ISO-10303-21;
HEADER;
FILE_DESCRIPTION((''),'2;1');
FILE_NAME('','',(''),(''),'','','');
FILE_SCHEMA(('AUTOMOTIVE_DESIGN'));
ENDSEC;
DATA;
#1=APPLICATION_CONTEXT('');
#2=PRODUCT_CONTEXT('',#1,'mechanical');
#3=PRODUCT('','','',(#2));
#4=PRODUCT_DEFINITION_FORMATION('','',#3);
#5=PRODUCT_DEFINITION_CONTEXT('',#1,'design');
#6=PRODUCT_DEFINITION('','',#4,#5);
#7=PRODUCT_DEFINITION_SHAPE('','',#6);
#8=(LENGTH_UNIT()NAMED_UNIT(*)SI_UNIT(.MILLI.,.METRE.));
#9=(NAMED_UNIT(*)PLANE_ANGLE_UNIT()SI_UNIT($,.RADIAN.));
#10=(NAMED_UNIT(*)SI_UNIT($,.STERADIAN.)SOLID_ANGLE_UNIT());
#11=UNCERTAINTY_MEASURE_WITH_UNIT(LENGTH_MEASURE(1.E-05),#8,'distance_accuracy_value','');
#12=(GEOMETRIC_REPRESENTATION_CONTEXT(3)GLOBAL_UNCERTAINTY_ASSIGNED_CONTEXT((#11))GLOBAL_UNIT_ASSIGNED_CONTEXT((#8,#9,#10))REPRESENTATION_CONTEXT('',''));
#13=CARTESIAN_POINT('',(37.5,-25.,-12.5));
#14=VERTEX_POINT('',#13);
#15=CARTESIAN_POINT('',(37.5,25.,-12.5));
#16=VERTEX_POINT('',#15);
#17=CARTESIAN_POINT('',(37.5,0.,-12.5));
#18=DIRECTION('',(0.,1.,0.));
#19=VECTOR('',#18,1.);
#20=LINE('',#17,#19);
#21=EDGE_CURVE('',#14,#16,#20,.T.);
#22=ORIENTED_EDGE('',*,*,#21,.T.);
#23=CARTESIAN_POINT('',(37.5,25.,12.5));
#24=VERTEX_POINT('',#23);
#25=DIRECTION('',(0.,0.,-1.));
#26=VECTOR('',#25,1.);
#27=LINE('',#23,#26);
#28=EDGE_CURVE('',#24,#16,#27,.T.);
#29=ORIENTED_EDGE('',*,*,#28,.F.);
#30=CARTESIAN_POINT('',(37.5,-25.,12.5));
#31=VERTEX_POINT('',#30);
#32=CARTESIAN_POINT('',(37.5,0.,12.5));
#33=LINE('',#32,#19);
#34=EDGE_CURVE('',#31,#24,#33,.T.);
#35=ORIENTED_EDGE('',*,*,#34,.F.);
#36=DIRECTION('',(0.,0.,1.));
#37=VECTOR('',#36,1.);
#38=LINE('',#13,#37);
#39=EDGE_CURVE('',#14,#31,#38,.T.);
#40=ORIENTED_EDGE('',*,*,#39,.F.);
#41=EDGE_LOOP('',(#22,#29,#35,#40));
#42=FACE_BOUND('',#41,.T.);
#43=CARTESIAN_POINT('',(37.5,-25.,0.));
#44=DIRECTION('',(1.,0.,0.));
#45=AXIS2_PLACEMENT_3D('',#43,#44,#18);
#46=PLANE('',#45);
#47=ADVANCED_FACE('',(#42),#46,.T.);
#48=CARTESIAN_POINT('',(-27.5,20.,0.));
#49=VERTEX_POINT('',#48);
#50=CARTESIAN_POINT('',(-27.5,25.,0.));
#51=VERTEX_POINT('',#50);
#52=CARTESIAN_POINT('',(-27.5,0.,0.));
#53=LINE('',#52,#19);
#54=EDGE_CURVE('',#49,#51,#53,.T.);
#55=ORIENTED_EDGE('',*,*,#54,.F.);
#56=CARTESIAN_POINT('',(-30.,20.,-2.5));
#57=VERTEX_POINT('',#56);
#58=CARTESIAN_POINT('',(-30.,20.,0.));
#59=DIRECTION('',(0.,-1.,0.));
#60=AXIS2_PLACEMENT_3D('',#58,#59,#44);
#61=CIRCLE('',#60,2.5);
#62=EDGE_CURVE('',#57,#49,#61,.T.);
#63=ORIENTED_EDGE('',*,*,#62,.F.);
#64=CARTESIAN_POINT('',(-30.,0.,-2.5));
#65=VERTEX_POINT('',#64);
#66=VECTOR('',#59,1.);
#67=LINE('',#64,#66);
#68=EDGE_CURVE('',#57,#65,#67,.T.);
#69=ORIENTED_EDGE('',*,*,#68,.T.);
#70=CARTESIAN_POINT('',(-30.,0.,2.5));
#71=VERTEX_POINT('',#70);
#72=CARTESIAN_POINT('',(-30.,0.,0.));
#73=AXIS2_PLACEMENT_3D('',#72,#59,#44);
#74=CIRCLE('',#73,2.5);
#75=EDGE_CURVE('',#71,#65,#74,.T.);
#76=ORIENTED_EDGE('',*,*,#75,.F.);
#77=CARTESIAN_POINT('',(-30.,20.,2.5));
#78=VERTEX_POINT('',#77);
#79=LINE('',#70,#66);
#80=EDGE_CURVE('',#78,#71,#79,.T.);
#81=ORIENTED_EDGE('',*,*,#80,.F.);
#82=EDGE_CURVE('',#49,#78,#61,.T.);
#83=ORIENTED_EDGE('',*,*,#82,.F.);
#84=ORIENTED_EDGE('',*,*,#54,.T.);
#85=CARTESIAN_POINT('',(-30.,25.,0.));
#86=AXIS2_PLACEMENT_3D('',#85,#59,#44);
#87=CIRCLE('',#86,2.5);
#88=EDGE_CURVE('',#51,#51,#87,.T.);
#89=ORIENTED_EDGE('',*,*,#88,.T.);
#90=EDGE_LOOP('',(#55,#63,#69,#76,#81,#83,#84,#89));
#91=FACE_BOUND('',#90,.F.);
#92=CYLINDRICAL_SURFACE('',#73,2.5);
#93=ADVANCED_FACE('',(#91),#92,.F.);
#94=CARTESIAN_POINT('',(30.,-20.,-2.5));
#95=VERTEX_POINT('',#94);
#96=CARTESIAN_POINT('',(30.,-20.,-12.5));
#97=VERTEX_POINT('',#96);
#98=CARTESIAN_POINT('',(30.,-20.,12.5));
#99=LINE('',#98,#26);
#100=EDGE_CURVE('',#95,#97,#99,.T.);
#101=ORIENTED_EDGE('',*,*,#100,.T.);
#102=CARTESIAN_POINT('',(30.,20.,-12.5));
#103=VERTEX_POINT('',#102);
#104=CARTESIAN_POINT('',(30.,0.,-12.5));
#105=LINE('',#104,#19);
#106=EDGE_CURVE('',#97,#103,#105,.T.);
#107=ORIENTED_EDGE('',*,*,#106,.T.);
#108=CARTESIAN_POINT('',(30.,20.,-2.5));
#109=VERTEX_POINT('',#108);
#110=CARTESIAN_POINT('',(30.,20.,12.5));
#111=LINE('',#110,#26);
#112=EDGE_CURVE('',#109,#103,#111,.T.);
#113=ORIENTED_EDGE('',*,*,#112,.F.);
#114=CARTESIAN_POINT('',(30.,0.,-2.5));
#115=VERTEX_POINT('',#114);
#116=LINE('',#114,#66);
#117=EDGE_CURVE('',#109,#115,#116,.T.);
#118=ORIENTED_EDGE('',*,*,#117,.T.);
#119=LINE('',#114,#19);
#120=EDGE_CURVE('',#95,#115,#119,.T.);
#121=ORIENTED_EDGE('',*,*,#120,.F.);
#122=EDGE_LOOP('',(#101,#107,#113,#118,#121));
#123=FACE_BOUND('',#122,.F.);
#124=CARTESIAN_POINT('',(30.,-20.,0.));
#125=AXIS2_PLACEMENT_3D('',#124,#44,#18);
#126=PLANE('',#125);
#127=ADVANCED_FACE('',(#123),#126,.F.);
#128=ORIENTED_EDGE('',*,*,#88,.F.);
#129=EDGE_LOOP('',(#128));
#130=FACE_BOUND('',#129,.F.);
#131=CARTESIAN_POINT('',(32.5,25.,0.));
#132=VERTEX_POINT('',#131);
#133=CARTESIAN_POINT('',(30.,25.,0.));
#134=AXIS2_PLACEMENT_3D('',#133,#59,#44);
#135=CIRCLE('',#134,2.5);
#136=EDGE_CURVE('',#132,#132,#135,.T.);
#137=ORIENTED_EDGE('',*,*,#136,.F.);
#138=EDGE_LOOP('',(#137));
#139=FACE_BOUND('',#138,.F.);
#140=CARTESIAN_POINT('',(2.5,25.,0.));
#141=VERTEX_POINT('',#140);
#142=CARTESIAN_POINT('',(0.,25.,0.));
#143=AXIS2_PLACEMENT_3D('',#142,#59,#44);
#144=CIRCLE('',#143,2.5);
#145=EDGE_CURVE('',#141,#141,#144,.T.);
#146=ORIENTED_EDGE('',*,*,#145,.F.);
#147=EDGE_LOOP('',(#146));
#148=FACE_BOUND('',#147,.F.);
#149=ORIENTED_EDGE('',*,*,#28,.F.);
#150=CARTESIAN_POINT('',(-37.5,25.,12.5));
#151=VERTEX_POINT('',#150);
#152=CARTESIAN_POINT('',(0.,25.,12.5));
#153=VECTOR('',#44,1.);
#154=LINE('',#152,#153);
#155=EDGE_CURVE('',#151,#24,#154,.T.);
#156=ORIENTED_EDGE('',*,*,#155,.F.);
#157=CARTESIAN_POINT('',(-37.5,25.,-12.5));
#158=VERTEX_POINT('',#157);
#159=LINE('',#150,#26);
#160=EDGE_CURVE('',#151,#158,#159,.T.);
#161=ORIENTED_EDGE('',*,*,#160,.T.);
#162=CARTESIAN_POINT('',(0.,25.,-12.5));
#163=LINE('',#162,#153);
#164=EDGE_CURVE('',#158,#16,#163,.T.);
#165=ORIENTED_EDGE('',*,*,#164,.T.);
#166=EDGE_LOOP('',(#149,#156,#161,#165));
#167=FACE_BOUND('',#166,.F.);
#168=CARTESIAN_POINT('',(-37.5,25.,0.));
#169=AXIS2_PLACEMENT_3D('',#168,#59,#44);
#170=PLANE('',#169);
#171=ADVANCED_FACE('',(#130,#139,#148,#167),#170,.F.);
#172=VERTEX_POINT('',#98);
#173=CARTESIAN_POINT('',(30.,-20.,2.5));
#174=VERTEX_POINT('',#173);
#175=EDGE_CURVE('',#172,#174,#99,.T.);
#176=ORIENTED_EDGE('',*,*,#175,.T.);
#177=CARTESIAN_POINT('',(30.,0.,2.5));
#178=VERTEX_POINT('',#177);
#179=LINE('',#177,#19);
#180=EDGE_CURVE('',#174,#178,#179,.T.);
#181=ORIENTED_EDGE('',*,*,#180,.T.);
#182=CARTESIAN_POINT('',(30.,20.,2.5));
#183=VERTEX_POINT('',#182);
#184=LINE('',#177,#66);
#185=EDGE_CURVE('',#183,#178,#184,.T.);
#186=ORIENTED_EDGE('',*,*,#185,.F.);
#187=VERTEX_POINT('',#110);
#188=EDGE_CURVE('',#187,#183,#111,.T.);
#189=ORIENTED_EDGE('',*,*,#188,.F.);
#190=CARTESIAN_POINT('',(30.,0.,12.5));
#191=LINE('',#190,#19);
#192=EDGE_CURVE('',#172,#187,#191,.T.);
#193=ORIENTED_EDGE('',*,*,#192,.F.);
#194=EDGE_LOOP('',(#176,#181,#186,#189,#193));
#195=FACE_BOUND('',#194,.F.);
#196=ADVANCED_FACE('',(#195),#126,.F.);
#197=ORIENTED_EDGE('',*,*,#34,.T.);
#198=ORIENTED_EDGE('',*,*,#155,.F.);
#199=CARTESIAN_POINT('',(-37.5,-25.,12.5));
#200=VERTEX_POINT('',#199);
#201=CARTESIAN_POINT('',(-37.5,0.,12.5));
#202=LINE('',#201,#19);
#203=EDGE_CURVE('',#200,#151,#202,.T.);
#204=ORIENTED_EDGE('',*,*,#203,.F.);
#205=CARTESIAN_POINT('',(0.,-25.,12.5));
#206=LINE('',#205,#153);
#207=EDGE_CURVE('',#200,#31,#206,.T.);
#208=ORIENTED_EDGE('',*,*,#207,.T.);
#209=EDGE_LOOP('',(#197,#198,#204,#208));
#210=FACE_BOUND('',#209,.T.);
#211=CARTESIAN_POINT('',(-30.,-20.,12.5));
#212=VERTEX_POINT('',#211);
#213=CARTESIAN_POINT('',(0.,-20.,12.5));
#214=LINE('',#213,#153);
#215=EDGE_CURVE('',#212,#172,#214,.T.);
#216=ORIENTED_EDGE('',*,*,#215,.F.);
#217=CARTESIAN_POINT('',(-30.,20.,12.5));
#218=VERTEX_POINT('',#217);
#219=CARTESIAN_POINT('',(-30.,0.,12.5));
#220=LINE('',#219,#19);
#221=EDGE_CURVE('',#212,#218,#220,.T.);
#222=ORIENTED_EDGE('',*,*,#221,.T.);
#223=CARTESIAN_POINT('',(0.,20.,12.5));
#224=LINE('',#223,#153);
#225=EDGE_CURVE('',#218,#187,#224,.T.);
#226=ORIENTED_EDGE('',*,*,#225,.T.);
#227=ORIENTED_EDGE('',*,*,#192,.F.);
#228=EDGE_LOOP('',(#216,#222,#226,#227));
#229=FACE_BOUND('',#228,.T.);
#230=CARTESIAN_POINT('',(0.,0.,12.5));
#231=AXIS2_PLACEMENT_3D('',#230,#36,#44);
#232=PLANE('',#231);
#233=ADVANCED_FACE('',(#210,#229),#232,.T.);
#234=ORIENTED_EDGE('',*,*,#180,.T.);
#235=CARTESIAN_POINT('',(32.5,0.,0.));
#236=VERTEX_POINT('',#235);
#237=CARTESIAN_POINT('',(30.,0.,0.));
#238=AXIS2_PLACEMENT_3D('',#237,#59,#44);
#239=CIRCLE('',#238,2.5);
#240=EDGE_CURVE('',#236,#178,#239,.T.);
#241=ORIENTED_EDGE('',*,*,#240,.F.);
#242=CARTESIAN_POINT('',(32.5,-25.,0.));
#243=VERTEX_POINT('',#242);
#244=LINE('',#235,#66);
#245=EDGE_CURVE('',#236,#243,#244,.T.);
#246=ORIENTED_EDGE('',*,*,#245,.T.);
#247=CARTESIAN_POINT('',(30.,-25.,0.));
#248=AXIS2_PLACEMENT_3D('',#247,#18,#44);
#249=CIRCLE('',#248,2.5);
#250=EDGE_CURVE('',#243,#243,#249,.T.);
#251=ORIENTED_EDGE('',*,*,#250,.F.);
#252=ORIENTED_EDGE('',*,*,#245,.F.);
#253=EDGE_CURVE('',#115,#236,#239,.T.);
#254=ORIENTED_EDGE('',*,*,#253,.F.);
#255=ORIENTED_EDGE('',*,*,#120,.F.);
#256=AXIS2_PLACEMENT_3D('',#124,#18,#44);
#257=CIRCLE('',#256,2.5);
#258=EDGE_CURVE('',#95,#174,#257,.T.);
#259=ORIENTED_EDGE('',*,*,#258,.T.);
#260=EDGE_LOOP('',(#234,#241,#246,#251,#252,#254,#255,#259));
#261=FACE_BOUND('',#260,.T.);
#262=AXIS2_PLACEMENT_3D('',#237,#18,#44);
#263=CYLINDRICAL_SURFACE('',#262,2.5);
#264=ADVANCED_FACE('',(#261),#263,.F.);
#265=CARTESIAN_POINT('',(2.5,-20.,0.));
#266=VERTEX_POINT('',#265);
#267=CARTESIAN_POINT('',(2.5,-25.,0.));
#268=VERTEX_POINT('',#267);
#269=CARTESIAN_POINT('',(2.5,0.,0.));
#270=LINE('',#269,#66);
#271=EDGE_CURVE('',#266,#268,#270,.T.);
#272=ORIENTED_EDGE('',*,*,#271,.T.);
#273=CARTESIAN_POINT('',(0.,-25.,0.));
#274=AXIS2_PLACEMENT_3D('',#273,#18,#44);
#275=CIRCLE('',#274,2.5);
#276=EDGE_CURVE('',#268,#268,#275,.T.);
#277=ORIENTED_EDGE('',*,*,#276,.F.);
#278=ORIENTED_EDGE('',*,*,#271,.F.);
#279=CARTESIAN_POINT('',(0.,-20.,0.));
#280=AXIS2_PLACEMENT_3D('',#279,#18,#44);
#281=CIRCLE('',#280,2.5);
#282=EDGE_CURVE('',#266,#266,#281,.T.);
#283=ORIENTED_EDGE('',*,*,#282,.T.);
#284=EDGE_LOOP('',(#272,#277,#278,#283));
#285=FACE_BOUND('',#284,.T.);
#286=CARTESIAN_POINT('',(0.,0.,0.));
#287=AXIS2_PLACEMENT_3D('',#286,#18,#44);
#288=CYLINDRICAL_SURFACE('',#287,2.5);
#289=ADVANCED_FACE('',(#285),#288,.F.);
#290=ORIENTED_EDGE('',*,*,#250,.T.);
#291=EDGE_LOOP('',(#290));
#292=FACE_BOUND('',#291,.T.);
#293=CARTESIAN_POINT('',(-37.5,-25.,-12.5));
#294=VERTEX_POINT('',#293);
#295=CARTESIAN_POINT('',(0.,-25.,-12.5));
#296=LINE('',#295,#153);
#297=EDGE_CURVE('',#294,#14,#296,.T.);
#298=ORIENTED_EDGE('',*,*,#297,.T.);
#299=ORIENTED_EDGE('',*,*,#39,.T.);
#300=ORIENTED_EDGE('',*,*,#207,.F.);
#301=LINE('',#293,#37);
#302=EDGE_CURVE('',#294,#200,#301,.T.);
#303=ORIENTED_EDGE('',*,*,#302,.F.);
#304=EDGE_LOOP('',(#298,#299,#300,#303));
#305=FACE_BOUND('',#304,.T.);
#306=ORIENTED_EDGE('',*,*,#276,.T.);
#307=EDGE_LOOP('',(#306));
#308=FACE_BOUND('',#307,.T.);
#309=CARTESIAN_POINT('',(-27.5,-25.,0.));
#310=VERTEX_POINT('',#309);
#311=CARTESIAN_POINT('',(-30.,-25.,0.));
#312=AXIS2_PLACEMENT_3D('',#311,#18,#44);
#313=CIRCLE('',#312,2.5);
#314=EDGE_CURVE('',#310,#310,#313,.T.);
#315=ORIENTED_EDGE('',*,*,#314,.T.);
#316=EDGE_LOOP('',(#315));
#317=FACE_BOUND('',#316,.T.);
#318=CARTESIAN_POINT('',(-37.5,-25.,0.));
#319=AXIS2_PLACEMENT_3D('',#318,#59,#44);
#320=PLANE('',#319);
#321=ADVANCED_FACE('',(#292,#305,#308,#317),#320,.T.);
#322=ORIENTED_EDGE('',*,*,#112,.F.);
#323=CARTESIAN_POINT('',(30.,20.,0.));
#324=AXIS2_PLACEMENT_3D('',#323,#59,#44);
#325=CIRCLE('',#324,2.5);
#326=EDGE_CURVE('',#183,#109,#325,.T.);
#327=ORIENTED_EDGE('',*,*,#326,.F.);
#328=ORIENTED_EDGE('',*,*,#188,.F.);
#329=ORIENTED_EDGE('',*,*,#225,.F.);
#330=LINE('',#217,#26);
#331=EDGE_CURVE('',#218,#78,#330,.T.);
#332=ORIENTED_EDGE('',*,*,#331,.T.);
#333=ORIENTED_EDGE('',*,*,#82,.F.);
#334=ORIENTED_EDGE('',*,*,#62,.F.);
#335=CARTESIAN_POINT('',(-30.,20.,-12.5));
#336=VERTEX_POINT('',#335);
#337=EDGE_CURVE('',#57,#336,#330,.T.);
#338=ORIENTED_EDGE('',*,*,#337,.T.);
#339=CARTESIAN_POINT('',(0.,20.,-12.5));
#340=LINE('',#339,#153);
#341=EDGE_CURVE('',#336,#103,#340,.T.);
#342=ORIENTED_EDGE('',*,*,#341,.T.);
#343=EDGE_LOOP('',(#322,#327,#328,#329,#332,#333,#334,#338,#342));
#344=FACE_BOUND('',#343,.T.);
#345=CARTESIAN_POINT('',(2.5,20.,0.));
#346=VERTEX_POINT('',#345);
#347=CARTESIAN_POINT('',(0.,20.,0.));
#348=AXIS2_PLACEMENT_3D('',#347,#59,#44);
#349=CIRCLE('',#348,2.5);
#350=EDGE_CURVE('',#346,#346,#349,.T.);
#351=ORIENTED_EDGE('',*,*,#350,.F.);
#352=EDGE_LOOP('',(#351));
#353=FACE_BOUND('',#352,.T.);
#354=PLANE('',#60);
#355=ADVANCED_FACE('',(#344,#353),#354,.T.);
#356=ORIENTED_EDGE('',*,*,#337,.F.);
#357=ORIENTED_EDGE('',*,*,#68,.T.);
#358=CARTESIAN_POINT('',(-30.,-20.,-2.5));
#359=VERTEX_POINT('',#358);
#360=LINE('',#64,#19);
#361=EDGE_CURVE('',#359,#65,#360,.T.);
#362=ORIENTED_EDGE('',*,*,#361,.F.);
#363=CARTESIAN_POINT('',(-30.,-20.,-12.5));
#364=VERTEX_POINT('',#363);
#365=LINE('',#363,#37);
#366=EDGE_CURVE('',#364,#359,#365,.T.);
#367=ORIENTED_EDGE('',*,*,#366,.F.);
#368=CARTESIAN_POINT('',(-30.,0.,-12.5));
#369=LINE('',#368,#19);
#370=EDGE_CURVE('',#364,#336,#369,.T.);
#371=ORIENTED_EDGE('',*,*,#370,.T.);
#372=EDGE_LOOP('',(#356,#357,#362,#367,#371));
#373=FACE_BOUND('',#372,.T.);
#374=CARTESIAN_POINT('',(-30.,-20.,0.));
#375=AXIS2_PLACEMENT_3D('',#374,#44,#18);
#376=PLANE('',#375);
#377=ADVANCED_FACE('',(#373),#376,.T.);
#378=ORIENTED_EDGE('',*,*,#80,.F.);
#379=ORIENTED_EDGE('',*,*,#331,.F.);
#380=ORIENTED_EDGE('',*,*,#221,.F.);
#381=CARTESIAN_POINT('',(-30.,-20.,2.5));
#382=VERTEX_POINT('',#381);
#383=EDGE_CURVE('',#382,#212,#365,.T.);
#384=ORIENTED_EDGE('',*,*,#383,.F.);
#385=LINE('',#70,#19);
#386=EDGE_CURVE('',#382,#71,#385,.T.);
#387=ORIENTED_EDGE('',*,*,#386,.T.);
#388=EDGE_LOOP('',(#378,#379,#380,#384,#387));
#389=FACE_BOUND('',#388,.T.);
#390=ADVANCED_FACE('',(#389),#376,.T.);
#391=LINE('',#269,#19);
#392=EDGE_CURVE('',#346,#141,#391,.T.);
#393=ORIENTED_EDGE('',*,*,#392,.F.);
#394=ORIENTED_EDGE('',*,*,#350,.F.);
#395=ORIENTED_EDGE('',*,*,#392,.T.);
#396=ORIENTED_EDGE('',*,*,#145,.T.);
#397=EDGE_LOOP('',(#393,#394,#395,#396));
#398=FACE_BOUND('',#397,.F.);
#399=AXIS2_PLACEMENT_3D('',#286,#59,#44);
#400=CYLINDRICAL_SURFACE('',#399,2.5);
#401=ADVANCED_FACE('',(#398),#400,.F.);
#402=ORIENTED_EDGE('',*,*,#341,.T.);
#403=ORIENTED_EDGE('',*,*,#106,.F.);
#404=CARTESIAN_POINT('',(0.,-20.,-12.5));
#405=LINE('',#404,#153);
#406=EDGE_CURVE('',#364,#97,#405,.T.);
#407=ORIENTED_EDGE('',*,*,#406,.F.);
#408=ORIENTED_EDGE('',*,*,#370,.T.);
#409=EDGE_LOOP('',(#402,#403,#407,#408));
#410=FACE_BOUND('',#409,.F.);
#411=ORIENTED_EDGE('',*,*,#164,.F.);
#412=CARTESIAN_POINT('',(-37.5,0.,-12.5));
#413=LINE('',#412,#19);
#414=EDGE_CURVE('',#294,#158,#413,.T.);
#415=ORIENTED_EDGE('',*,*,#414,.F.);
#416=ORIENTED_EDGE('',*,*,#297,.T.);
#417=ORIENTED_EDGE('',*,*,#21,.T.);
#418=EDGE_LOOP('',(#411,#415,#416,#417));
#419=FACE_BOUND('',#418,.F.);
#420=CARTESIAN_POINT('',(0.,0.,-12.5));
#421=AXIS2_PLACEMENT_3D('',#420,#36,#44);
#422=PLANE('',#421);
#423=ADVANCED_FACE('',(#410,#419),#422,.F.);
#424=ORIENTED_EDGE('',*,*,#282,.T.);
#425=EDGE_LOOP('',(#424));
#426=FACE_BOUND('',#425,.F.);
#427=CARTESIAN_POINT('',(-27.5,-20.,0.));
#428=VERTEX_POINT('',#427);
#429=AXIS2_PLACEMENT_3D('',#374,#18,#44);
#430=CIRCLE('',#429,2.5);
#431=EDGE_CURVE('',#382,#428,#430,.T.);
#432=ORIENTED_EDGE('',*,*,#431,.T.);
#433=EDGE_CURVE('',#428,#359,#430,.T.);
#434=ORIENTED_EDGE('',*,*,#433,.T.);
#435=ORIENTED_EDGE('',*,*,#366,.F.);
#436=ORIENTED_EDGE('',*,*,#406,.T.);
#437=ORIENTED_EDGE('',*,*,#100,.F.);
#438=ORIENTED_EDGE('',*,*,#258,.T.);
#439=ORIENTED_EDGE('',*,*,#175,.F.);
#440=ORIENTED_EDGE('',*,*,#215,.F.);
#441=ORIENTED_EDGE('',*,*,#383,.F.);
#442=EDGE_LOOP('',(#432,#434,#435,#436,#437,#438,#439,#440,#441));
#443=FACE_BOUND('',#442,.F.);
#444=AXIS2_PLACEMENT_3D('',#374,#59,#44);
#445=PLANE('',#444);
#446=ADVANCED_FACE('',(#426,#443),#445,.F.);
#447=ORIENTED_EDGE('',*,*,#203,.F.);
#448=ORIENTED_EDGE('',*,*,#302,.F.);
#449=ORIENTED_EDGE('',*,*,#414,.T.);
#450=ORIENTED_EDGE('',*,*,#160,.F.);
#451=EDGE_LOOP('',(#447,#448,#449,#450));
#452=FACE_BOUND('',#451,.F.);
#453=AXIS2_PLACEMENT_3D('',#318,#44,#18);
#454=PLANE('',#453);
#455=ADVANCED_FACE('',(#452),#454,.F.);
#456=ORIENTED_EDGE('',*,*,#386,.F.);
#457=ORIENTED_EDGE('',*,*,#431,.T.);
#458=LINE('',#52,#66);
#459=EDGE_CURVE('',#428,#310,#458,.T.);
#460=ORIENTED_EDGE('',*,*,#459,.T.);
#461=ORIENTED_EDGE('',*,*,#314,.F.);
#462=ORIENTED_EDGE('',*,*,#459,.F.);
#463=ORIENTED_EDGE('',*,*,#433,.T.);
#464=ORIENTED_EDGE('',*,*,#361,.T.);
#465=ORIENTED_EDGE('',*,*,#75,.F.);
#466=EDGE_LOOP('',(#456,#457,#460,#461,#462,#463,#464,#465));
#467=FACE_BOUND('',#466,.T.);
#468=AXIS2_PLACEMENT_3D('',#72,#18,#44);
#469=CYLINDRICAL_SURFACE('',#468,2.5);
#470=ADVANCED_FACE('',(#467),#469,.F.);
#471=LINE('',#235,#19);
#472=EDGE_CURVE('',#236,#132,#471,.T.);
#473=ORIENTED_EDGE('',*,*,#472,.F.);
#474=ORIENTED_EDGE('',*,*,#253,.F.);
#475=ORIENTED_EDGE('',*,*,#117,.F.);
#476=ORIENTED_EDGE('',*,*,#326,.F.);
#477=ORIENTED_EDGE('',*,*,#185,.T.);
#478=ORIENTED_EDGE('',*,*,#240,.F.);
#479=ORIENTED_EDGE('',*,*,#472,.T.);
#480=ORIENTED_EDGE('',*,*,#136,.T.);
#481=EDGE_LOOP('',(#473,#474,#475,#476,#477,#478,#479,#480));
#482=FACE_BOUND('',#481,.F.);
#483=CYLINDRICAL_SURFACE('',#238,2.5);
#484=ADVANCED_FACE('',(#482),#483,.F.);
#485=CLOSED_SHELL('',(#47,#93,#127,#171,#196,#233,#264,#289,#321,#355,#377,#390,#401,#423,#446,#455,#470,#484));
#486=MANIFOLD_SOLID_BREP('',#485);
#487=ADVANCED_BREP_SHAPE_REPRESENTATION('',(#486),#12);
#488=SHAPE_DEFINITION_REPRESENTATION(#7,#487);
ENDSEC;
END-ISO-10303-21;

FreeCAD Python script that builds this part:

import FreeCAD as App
import Part
import Sketcher

V = App.Vector

doc = App.newDocument("Part")
body = doc.addObject("PartDesign::Body", "Body")

sketch1 = doc.addObject("Sketcher::SketchObject", "Sketch")
body.addObject(sketch1)
sketch1.AttachmentSupport = (doc.XY_Plane, [""])
sketch1.MapMode = "FlatFace"
sketch1.addGeometry(Part.LineSegment(V(-38, 25, 0), V(-38, -25, 0)), False)
sketch1.addGeometry(Part.LineSegment(V(-38, -25, 0), V(38, -25, 0)), False)
sketch1.addGeometry(Part.LineSegment(V(38, -25, 0), V(38, 25, 0)), False)
sketch1.addGeometry(Part.LineSegment(V(38, 25, 0), V(-38, 25, 0)), False)
sketch1.addGeometry(Part.LineSegment(V(30, -20, 0), V(-30, -20, 0)), False)
sketch1.addGeometry(Part.LineSegment(V(-30, -20, 0), V(-30, 20, 0)), False)
sketch1.addGeometry(Part.LineSegment(V(-30, 20, 0), V(30, 20, 0)), False)
sketch1.addGeometry(Part.LineSegment(V(30, 20, 0), V(30, -20, 0)), False)
sketch1.addConstraint(Sketcher.Constraint("Coincident", 0, 2, 1, 1))
sketch1.addConstraint(Sketcher.Constraint("Coincident", 1, 2, 2, 1))
sketch1.addConstraint(Sketcher.Constraint("Coincident", 2, 2, 3, 1))
sketch1.addConstraint(Sketcher.Constraint("Coincident", 3, 2, 0, 1))
sketch1.addConstraint(Sketcher.Constraint("Coincident", 4, 2, 5, 1))
sketch1.addConstraint(Sketcher.Constraint("Coincident", 5, 2, 6, 1))
sketch1.addConstraint(Sketcher.Constraint("Coincident", 6, 2, 7, 1))
sketch1.addConstraint(Sketcher.Constraint("Coincident", 7, 2, 4, 1))
sketch1.addConstraint(Sketcher.Constraint("Vertical", 0))
sketch1.addConstraint(Sketcher.Constraint("Horizontal", 1))
sketch1.addConstraint(Sketcher.Constraint("Vertical", 2))
sketch1.addConstraint(Sketcher.Constraint("Horizontal", 3))
sketch1.addConstraint(Sketcher.Constraint("Horizontal", 4))
sketch1.addConstraint(Sketcher.Constraint("Vertical", 5))
sketch1.addConstraint(Sketcher.Constraint("Horizontal", 6))
sketch1.addConstraint(Sketcher.Constraint("Vertical", 7))
sketch1.addConstraint(Sketcher.Constraint("Symmetric", 0, 2, 2, 2, -1, 1))
sketch1.addConstraint(Sketcher.Constraint("Symmetric", 4, 2, 6, 2, -1, 1))
sketch1.addConstraint(Sketcher.Constraint("DistanceX", 1, 1, 1, 2, 75.0))
sketch1.addConstraint(Sketcher.Constraint("DistanceX", 4, 2, 4, 1, 60.0))
sketch1.addConstraint(Sketcher.Constraint("DistanceY", 0, 2, 0, 1, 50.0))
sketch1.addConstraint(Sketcher.Constraint("DistanceY", 5, 1, 5, 2, 40.0))
pad1 = doc.addObject("PartDesign::Pad", "Pad")
body.addObject(pad1)
pad1.Profile = sketch1
pad1.Length = 25
pad1.Midplane = True

sketch2 = doc.addObject("Sketcher::SketchObject", "Sketch001")
body.addObject(sketch2)
sketch2.AttachmentSupport = (doc.XZ_Plane, [""])
sketch2.MapMode = "FlatFace"
sketch2.addGeometry(Part.Circle(V(-30, 0, 0), V(0, 0, 1), 2.5), False)
sketch2.addGeometry(Part.Circle(V(30, 0, 0), V(0, 0, 1), 2.5), False)
sketch2.addGeometry(Part.Circle(V(0, 0, 0), V(0, 0, 1), 2.5), False)
sketch2.addConstraint(Sketcher.Constraint("Coincident", 2, 3, -1, 1))
sketch2.addConstraint(Sketcher.Constraint("Equal", 0, 1))
sketch2.addConstraint(Sketcher.Constraint("Equal", 1, 2))
sketch2.addConstraint(Sketcher.Constraint("Symmetric", 0, 3, 1, 3, -1, 1))
sketch2.addConstraint(Sketcher.Constraint("PointOnObject", 0, 3, -1))
sketch2.addConstraint(Sketcher.Constraint("Diameter", 0, 5.0))
sketch2.addConstraint(Sketcher.Constraint("DistanceX", 0, 3, -1, 1, 30.0))
pocket1 = doc.addObject("PartDesign::Pocket", "Pocket")
body.addObject(pocket1)
pocket1.Profile = sketch2
pocket1.Type = "ThroughAll"
pocket1.Midplane = True

doc.recompute()
